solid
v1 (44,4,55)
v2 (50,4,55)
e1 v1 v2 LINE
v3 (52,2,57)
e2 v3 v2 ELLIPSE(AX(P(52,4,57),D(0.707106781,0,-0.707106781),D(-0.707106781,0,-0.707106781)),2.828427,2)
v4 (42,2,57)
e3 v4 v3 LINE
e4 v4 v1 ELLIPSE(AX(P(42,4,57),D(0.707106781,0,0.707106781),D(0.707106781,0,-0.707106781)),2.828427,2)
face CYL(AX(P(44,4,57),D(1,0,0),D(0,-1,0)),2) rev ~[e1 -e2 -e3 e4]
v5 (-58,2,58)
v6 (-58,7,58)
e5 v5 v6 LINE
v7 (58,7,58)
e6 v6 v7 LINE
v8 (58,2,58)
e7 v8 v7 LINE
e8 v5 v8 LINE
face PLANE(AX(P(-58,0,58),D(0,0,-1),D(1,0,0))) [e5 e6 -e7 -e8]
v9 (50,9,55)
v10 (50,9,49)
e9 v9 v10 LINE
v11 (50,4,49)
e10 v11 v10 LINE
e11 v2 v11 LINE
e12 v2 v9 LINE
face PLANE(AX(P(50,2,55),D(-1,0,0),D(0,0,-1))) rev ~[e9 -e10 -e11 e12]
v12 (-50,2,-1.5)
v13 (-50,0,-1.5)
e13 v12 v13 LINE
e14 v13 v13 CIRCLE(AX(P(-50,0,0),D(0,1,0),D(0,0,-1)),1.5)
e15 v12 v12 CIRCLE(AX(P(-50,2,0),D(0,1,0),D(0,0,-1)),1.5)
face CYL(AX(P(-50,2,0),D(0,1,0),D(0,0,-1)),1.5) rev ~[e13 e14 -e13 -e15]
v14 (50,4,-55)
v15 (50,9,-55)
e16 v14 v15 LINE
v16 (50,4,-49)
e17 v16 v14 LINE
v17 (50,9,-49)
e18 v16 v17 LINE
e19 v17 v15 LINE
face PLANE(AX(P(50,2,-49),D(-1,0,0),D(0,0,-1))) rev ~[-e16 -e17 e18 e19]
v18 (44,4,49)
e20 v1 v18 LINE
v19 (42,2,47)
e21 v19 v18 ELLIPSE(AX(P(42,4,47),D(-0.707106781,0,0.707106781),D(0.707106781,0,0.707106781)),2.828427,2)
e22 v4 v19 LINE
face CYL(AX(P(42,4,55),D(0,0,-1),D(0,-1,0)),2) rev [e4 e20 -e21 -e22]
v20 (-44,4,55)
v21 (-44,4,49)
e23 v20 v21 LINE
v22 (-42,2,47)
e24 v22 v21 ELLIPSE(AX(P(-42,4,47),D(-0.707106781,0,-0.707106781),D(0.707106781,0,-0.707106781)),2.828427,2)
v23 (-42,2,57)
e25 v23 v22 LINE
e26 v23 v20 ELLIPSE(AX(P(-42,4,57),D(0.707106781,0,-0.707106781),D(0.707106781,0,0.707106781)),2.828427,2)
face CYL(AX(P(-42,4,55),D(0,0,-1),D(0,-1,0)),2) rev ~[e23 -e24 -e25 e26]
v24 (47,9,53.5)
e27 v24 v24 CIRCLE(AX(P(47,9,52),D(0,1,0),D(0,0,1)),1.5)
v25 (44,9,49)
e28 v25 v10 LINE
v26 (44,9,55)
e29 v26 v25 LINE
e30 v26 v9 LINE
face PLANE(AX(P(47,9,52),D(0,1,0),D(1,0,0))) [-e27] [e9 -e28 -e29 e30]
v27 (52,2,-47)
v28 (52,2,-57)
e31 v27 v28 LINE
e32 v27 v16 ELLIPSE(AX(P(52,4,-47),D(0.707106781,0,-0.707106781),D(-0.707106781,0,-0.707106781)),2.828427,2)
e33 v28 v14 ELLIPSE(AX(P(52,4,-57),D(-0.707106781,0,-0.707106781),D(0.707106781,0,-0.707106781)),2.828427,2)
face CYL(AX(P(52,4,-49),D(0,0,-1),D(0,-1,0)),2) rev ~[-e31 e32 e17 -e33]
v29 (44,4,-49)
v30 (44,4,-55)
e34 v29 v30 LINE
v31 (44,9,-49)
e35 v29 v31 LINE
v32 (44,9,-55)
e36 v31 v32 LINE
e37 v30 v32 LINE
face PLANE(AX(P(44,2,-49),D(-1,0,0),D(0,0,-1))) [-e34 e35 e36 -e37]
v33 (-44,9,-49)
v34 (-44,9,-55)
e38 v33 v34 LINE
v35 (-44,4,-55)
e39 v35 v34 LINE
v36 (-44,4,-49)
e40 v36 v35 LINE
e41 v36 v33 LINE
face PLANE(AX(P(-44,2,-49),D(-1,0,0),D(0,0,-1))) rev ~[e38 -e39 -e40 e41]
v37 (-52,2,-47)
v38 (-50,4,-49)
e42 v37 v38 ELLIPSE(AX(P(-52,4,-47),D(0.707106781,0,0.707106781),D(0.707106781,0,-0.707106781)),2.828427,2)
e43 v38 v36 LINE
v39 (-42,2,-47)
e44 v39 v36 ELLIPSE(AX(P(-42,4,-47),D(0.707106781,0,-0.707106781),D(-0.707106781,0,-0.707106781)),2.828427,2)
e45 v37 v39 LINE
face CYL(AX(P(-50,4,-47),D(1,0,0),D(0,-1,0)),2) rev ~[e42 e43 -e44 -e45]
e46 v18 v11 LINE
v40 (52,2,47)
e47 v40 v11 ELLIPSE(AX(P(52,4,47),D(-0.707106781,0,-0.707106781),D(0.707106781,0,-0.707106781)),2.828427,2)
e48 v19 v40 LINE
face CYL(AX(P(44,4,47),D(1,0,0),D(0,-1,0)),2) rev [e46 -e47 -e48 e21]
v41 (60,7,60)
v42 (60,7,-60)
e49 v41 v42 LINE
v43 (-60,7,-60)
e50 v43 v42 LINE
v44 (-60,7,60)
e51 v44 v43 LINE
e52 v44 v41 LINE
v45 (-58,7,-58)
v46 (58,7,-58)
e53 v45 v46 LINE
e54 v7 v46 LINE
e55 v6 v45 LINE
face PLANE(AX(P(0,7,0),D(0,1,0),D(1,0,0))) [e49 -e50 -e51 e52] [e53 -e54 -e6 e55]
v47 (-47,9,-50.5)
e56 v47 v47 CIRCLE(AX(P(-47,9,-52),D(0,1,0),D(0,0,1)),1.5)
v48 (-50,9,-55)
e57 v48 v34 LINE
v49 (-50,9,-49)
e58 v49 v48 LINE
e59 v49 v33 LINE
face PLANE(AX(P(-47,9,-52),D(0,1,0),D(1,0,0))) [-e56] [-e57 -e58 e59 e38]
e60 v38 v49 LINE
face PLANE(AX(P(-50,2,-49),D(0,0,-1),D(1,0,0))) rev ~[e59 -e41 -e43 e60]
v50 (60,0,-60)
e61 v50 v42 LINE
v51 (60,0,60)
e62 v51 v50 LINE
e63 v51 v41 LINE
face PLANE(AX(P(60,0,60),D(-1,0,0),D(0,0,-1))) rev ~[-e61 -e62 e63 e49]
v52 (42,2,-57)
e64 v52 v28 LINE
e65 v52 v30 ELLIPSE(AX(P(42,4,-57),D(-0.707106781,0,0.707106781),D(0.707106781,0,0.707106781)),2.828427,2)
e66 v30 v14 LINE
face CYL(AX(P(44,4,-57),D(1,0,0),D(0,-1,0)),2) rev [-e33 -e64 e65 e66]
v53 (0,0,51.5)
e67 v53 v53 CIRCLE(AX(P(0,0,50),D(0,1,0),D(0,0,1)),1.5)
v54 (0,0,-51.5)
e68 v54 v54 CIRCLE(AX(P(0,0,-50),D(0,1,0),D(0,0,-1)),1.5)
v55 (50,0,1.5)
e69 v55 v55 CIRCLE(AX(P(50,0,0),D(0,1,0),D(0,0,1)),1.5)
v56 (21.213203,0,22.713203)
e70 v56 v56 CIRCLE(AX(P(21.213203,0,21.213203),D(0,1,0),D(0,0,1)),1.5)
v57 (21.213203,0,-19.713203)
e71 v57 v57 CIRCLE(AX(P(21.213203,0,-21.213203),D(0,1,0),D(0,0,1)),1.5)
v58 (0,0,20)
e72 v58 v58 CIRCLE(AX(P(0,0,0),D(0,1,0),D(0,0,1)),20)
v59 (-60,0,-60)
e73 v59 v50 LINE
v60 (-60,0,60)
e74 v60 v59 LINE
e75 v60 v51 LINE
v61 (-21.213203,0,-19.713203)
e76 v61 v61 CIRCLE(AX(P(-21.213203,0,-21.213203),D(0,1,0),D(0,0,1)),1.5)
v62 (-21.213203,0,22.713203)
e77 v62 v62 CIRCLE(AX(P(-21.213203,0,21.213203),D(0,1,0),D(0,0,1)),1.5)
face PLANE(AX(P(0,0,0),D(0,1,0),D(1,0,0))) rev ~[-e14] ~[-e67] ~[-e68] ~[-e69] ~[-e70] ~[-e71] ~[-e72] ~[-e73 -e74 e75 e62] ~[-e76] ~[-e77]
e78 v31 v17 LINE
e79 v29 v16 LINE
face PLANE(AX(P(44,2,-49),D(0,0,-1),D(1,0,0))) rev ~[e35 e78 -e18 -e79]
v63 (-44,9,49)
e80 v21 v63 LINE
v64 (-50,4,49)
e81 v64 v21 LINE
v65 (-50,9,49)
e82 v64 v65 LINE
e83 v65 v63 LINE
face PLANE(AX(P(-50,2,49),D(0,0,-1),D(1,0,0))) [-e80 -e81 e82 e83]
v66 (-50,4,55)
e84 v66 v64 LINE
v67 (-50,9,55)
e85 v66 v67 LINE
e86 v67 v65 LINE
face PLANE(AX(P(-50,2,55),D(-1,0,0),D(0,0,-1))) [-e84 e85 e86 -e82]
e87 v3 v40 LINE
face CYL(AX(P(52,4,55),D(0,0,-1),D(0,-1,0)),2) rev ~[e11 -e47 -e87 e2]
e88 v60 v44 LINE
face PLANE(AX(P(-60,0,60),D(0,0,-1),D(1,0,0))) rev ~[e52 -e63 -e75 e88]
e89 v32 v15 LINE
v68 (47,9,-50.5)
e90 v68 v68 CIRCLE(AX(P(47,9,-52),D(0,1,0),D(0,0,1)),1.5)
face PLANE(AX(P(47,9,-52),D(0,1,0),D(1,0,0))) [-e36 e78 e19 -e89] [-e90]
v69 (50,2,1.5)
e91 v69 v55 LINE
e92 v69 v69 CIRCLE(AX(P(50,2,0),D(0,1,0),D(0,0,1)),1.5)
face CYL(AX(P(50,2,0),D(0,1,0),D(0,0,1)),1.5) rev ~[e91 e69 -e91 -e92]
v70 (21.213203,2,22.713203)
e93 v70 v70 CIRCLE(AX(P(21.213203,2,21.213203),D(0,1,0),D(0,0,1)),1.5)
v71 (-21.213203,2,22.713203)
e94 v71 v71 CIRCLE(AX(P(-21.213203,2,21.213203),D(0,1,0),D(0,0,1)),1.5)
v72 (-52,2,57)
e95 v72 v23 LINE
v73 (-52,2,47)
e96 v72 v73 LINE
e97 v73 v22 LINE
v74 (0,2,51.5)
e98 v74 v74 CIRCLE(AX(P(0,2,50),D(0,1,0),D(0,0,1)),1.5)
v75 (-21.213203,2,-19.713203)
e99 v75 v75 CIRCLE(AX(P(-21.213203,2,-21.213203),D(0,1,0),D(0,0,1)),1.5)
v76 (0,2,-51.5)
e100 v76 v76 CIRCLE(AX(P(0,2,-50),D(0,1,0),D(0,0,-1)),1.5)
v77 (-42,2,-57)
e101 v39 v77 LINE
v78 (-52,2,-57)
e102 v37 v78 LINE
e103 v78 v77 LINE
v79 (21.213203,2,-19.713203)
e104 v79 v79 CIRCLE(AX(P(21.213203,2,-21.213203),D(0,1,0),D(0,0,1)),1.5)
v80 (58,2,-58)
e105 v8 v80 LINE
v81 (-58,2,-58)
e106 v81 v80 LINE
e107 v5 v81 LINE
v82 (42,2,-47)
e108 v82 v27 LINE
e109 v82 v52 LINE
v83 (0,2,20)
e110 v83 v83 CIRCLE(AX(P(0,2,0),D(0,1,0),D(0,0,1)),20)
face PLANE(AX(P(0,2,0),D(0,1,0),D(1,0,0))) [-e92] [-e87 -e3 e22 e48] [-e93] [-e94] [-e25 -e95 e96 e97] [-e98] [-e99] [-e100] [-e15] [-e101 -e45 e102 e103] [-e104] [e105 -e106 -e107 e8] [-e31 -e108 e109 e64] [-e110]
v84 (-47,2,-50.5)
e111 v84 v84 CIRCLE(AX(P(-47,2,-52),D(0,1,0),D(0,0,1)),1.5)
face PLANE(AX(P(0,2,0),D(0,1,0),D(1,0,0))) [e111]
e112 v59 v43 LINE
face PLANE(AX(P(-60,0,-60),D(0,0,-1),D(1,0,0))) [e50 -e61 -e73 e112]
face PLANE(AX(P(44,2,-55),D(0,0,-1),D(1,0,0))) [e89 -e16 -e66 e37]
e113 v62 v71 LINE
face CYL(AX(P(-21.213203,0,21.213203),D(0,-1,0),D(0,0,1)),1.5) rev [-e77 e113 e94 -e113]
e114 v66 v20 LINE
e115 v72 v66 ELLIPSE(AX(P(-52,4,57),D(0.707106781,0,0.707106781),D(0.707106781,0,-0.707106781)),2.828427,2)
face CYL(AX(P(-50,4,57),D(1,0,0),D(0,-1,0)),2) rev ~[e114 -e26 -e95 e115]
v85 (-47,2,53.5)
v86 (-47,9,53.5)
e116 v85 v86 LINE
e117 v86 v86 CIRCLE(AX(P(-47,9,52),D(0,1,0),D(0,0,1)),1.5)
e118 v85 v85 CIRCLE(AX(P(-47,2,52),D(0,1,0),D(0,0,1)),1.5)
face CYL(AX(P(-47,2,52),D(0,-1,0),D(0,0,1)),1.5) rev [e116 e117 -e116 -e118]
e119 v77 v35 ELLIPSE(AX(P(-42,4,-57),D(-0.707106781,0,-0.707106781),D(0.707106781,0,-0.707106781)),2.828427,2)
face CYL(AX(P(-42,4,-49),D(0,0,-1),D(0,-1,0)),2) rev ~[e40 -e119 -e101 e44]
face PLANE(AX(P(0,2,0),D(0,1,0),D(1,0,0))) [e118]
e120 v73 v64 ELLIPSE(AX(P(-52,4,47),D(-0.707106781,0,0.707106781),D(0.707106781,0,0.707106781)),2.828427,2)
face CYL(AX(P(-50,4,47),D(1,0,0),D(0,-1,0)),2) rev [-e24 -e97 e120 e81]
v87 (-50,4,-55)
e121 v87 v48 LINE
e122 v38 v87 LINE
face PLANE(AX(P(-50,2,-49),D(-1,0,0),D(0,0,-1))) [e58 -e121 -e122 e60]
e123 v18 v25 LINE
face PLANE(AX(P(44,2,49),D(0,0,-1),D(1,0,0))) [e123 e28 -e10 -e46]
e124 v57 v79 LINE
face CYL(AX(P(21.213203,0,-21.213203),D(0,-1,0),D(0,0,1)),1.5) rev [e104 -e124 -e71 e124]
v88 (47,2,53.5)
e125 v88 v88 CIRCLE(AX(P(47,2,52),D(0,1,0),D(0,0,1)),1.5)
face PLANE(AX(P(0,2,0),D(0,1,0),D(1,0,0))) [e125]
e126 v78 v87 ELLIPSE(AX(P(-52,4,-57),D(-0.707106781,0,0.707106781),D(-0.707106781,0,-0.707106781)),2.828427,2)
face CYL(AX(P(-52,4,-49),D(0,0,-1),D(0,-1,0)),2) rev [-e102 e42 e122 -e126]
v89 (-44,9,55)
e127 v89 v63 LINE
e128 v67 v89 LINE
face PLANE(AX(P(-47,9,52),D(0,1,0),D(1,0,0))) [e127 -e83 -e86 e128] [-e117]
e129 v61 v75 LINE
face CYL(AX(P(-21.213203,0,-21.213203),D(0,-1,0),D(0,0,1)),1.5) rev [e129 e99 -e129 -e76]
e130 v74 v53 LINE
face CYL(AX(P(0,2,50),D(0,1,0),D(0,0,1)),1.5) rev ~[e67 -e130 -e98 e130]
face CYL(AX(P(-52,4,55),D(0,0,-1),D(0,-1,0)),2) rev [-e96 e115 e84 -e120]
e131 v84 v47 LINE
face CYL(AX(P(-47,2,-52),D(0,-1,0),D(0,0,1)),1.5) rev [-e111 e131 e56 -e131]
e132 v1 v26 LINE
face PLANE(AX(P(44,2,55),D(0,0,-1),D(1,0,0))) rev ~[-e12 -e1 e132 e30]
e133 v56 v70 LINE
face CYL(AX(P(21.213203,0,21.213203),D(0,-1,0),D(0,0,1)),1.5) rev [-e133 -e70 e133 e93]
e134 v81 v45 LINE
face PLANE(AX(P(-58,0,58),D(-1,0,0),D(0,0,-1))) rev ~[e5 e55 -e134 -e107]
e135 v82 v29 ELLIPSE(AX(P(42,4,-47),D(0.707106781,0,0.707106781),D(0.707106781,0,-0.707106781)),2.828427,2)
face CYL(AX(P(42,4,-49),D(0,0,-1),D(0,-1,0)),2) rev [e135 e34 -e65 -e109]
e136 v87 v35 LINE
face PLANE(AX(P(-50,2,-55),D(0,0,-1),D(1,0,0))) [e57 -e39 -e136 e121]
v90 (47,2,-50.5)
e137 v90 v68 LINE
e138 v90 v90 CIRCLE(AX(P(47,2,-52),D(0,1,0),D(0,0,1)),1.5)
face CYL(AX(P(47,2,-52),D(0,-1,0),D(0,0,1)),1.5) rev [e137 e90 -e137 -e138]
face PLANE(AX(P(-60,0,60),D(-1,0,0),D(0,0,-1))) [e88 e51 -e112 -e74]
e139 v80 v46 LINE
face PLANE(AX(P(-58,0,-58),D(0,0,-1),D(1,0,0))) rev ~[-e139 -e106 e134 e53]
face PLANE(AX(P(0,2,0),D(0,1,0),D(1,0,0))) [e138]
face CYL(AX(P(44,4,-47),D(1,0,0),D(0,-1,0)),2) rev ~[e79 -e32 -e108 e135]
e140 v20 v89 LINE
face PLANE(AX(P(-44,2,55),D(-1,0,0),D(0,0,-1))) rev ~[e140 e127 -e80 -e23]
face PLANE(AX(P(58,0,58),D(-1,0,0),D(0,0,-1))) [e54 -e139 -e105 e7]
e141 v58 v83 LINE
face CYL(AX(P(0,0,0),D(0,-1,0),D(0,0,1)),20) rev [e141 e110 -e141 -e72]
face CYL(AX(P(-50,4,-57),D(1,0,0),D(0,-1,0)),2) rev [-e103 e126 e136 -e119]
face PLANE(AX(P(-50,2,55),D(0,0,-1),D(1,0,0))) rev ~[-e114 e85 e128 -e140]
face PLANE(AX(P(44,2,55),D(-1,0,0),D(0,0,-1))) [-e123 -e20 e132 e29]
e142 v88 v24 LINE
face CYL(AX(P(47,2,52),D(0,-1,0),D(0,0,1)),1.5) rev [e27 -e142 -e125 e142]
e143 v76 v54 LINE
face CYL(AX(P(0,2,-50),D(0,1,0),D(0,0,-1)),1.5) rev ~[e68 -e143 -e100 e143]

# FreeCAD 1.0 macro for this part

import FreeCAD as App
import Part
import Sketcher

V = App.Vector
Q = App.Units.Quantity


def edges_at(feature, points):
    """Names of the edges that pass closest to the given points."""
    edges = feature.Shape.Edges
    near = lambda p: min(range(len(edges)), key=lambda i: edges[i].distToShape(Part.Vertex(*p))[0])
    return sorted({f"Edge{near(p) + 1}" for p in points})


def add_polygon(sketch, points):
    """Adds a closed chain of lines whose ends are joined by coincident constraints."""
    first, n = sketch.GeometryCount, len(points)
    for a, b in zip(points, points[1:] + points[:1]):
        sketch.addGeometry(Part.LineSegment(App.Vector(*a, 0), App.Vector(*b, 0)), False)
    for i in range(n):
        sketch.addConstraint(Sketcher.Constraint("Coincident", first + i, 2, first + (i + 1) % n, 1))

doc = App.newDocument("Part")
body = doc.addObject("PartDesign::Body", "Body")

sketch1 = body.newObject("Sketcher::SketchObject", "Sketch")
sketch1.AttachmentSupport = (doc.getObject("XZ_Plane"), [""])
sketch1.MapMode = "FlatFace"
add_polygon(sketch1, [(-58, -58), (-58, 58), (58, 58), (58, -58)])
sketch1.addGeometry(Part.Circle(V(-21.2, 21.2, 0), V(0, 0, 1), 1.5), False)
sketch1.addGeometry(Part.Circle(V(21.2, 21.2, 0), V(0, 0, 1), 1.5), False)
sketch1.addGeometry(Part.Circle(V(-21.2, -21.2, 0), V(0, 0, 1), 1.5), False)
sketch1.addGeometry(Part.Circle(V(0, 0, 0), V(0, 0, 1), 20), False)
sketch1.addGeometry(Part.Circle(V(21.2, -21.2, 0), V(0, 0, 1), 1.5), False)
sketch1.addConstraint([
    Sketcher.Constraint("Vertical", 0),
    Sketcher.Constraint("Horizontal", 1),
    Sketcher.Constraint("Vertical", 2),
    Sketcher.Constraint("Horizontal", 3),
    Sketcher.Constraint("Coincident", 7, 3, -1, 1),
    Sketcher.Constraint("Equal", 4, 5),
    Sketcher.Constraint("Equal", 5, 6),
    Sketcher.Constraint("Equal", 6, 8),
    Sketcher.Constraint("Symmetric", 5, 3, 6, 3, -1, 1),
    Sketcher.Constraint("Symmetric", 4, 3, 8, 3, -1, 1),
    Sketcher.Constraint("Symmetric", 0, 2, 2, 2, -1, 1),
    Sketcher.Constraint("Symmetric", 4, 3, 5, 3, -2),
    Sketcher.Constraint("Equal", 3, 0),
    Sketcher.Constraint("Diameter", 4, Q("3 mm")),
    Sketcher.Constraint("Diameter", 7, Q("40 mm")),
    Sketcher.Constraint("DistanceX", 1, 1, 1, 2, Q("116 mm")),
    Sketcher.Constraint("DistanceX", 4, 3, -1, 1, Q("21.213203 mm")),
    Sketcher.Constraint("DistanceY", -1, 1, 4, 3, Q("21.213203 mm")),
])
pad1 = body.newObject("PartDesign::Pad", "Pad")
pad1.Profile = sketch1
pad1.Length = 2
pad1.Reversed = True

sketch2 = body.newObject("Sketcher::SketchObject", "Sketch001")
sketch2.AttachmentSupport = (doc.getObject("XZ_Plane"), [""])
sketch2.MapMode = "FlatFace"
sketch2.AttachmentOffset = App.Placement(V(0, 0, -2), App.Rotation())
add_polygon(sketch2, [(-50, 49), (-50, 55), (-44, 55), (-44, 49)])
sketch2.addGeometry(Part.Circle(V(-47, 52, 0), V(0, 0, 1), 1.5), False)
add_polygon(sketch2, [(44, 49), (44, 55), (50, 55), (50, 49)])
sketch2.addGeometry(Part.Circle(V(47, 52, 0), V(0, 0, 1), 1.5), False)
add_polygon(sketch2, [(44, -55), (44, -49), (50, -49), (50, -55)])
sketch2.addGeometry(Part.Circle(V(47, -52, 0), V(0, 0, 1), 1.5), False)
add_polygon(sketch2, [(-50, -55), (-50, -49), (-44, -49), (-44, -55)])
sketch2.addGeometry(Part.Circle(V(-47, -52, 0), V(0, 0, 1), 1.5), False)
sketch2.addConstraint([
    Sketcher.Constraint("Vertical", 0),
    Sketcher.Constraint("Horizontal", 1),
    Sketcher.Constraint("Vertical", 2),
    Sketcher.Constraint("Horizontal", 3),
    Sketcher.Constraint("Vertical", 5),
    Sketcher.Constraint("Horizontal", 6),
    Sketcher.Constraint("Vertical", 7),
    Sketcher.Constraint("Horizontal", 8),
    Sketcher.Constraint("Vertical", 10),
    Sketcher.Constraint("Horizontal", 11),
    Sketcher.Constraint("Vertical", 12),
    Sketcher.Constraint("Horizontal", 13),
    Sketcher.Constraint("Vertical", 15),
    Sketcher.Constraint("Horizontal", 16),
    Sketcher.Constraint("Vertical", 17),
    Sketcher.Constraint("Horizontal", 18),
    Sketcher.Constraint("Equal", 4, 9),
    Sketcher.Constraint("Equal", 9, 14),
    Sketcher.Constraint("Equal", 14, 19),
    Sketcher.Constraint("Symmetric", 4, 3, 14, 3, -1, 1),
    Sketcher.Constraint("Symmetric", 9, 3, 19, 3, -1, 1),
    Sketcher.Constraint("Symmetric", 2, 2, 10, 2, -1, 1),
    Sketcher.Constraint("Symmetric", 0, 2, 12, 2, -1, 1),
    Sketcher.Constraint("Symmetric", 7, 2, 15, 2, -1, 1),
    Sketcher.Constraint("Symmetric", 5, 2, 17, 2, -1, 1),
    Sketcher.Constraint("Symmetric", 4, 3, 9, 3, -2),
    Sketcher.Constraint("Symmetric", 1, 2, 5, 2, -2),
    Sketcher.Constraint("Symmetric", 3, 2, 7, 2, -2),
    Sketcher.Constraint("Equal", 18, 0),
    Sketcher.Constraint("Diameter", 4, Q("3 mm")),
    Sketcher.Constraint("DistanceX", 1, 1, 1, 2, Q("6 mm")),
    Sketcher.Constraint("DistanceX", 4, 3, -1, 1, Q("47 mm")),
    Sketcher.Constraint("DistanceY", -1, 1, 4, 3, Q("52 mm")),
    Sketcher.Constraint("DistanceX", 0, 2, -1, 1, Q("50 mm")),
    Sketcher.Constraint("DistanceY", -1, 1, 0, 2, Q("55 mm")),
])
pad2 = body.newObject("PartDesign::Pad", "Pad001")
pad2.Profile = sketch2
pad2.Length = 7
pad2.Reversed = True

sketch3 = body.newObject("Sketcher::SketchObject", "Sketch002")
sketch3.AttachmentSupport = (doc.getObject("XZ_Plane"), [""])
sketch3.MapMode = "FlatFace"
add_polygon(sketch3, [(-60, -60), (-60, 60), (60, 60), (60, -60)])
add_polygon(sketch3, [(58, 58), (-58, 58), (-58, -58), (58, -58)])
sketch3.addConstraint([
    Sketcher.Constraint("Vertical", 0),
    Sketcher.Constraint("Horizontal", 1),
    Sketcher.Constraint("Vertical", 2),
    Sketcher.Constraint("Horizontal", 3),
    Sketcher.Constraint("Horizontal", 4),
    Sketcher.Constraint("Vertical", 5),
    Sketcher.Constraint("Horizontal", 6),
    Sketcher.Constraint("Vertical", 7),
    Sketcher.Constraint("Symmetric", 0, 2, 2, 2, -1, 1),
    Sketcher.Constraint("Symmetric", 4, 2, 6, 2, -1, 1),
    Sketcher.Constraint("Equal", 3, 0),
    Sketcher.Constraint("Equal", 6, 5),
    Sketcher.Constraint("DistanceX", 1, 1, 1, 2, Q("120 mm")),
    Sketcher.Constraint("DistanceX", 4, 2, 4, 1, Q("116 mm")),
])
pad3 = body.newObject("PartDesign::Pad", "Pad002")
pad3.Profile = sketch3
pad3.Length = 7
pad3.Reversed = True

sketch4 = body.newObject("Sketcher::SketchObject", "Sketch003")
sketch4.AttachmentSupport = (doc.getObject("XZ_Plane"), [""])
sketch4.MapMode = "FlatFace"
sketch4.AttachmentOffset = App.Placement(V(0, 0, -2), App.Rotation())
sketch4.addGeometry([
    Part.Circle(V(50, 0, 0), V(0, 0, 1), 1.5),
    Part.Circle(V(-50, 0, 0), V(0, 0, 1), 1.5),
    Part.Circle(V(0, 50, 0), V(0, 0, 1), 1.5),
    Part.Circle(V(0, -50, 0), V(0, 0, 1), 1.5),
], False)
sketch4.addConstraint([
    Sketcher.Constraint("Equal", 0, 1),
    Sketcher.Constraint("Equal", 1, 2),
    Sketcher.Constraint("Equal", 2, 3),
    Sketcher.Constraint("Symmetric", 0, 3, 1, 3, -1, 1),
    Sketcher.Constraint("Symmetric", 2, 3, 3, 3, -1, 1),
    Sketcher.Constraint("PointOnObject", 0, 3, -1),
    Sketcher.Constraint("PointOnObject", 2, 3, -2),
    Sketcher.Constraint("Diameter", 0, Q("3 mm")),
    Sketcher.Constraint("DistanceX", -1, 1, 0, 3, Q("50 mm")),
    Sketcher.Constraint("DistanceY", -1, 1, 2, 3, Q("50 mm")),
])
pocket1 = body.newObject("PartDesign::Pocket", "Pocket")
pocket1.Profile = sketch4
pocket1.Type = "ThroughAll"
pocket1.Reversed = True
doc.recompute()

fillet = body.newObject("PartDesign::Fillet", "Fillet")
fillet.Base = (pocket1, edges_at(pocket1, [
    (-47, 2, 49),
    (-50, 2, 52),
    (-47, 2, 55),
    (-44, 2, 52),
    (47, 2, 49),
    (44, 2, 52),
    (50, 2, 52),
    (47, 2, 55),
    (50, 2, -52),
    (47, 2, -55),
    (47, 2, -49),
    (44, 2, -52),
    (-44, 2, -52),
    (-50, 2, -52),
    (-47, 2, -55),
    (-47, 2, -49),
]))
fillet.Radius = 2

doc.recompute()
